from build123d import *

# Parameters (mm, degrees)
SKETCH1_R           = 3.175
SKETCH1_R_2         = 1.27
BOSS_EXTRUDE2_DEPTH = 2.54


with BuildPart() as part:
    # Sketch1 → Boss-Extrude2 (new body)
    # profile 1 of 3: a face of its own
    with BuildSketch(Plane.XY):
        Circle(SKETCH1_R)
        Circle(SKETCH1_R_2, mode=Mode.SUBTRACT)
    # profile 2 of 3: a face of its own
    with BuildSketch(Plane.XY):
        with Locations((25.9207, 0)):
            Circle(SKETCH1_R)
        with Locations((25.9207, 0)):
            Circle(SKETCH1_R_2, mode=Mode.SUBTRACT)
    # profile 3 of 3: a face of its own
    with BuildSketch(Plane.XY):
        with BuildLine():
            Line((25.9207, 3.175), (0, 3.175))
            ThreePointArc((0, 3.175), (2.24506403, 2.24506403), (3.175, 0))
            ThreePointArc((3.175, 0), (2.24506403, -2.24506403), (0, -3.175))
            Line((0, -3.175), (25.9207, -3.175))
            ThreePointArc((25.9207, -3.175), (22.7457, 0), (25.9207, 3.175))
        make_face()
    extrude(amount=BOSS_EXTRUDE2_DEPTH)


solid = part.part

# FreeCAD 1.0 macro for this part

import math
import FreeCAD as App
import Part
import Sketcher

V = App.Vector
Q = App.Units.Quantity

doc = App.newDocument("Part")
params = doc.addObject("Spreadsheet::Sheet", "Params")
for row, (alias, value) in enumerate([
    ("sketch1_diameter", "0.1 in"),
    ("sketch1_radius", "0.125 in"),
    ("pad1_length", "0.1 in"),
], start=1):
    params.set(f"A{row}", alias)
    params.set(f"B{row}", "=" + value)
    params.setAlias(f"B{row}", alias)

body = doc.addObject("PartDesign::Body", "Body")

sketch1 = body.newObject("Sketcher::SketchObject", "Sketch")
sketch1.AttachmentSupport = (doc.getObject("XY_Plane"), [""])
sketch1.MapMode = "FlatFace"
sketch1.addGeometry([
    Part.ArcOfCircle(Part.Circle(V(0, 0, 0), V(0, 0, 1), 3.2), math.radians(90), math.radians(270)),
    Part.LineSegment(V(0, -3.2, 0), V(25.9, -3.2, 0)),
    Part.ArcOfCircle(Part.Circle(V(25.9, 0, 0), V(0, 0, 1), 3.2), math.radians(-90), math.radians(90)),
    Part.LineSegment(V(25.9, 3.2, 0), V(0, 3.2, 0)),
    Part.Circle(V(0, 0, 0), V(0, 0, 1), 1.3),
    Part.Circle(V(25.9, 0, 0), V(0, 0, 1), 1.3),
], False)
sketch1.addConstraint([
    Sketcher.Constraint("Tangent", 0, 2, 1, 1),
    Sketcher.Constraint("Tangent", 1, 2, 2, 1),
    Sketcher.Constraint("Tangent", 2, 2, 3, 1),
    Sketcher.Constraint("Tangent", 3, 2, 0, 1),
    Sketcher.Constraint("Horizontal", 1),
    Sketcher.Constraint("Horizontal", 3),
    Sketcher.Constraint("Coincident", 0, 3, -1, 1),
    Sketcher.Constraint("Coincident", 4, 3, -1, 1),
    Sketcher.Constraint("Coincident", 5, 3, 2, 3),
    Sketcher.Constraint("Equal", 4, 5),
    Sketcher.Constraint("Diameter", 4, Q("0.1 in")),
    Sketcher.Constraint("Radius", 0, Q("0.125 in")),
    Sketcher.Constraint("DistanceX", 1, 1, 1, 2, Q("1.0205 in")),
])
sketch1.setExpression("Constraints[10]", "Params.sketch1_diameter")
sketch1.setExpression("Constraints[11]", "Params.sketch1_radius")
pad1 = body.newObject("PartDesign::Pad", "Pad")
pad1.Profile = sketch1
pad1.setExpression("Length", "Params.pad1_length")

doc.recompute()
